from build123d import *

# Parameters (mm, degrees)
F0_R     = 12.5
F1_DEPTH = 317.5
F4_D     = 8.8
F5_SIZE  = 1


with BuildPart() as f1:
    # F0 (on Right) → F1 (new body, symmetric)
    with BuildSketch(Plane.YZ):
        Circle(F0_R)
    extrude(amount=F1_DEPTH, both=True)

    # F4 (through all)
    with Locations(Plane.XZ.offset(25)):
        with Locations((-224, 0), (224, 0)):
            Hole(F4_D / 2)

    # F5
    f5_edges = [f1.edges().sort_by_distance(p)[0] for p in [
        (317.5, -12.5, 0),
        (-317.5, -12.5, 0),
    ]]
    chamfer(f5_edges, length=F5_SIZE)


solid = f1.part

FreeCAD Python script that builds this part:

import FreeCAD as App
import Part
import Sketcher


def edges_at(feature, points):
    """Names of the edges that pass closest to the given points."""
    edges = feature.Shape.Edges
    near = lambda p: min(range(len(edges)), key=lambda i: edges[i].distToShape(Part.Vertex(*p))[0])
    return sorted({f"Edge{near(p) + 1}" for p in points})

doc = App.newDocument("Part")
body = doc.addObject("PartDesign::Body", "Body")

# Sketch on YZ plane
sketch1 = doc.addObject("Sketcher::SketchObject", "Sketch")
body.addObject(sketch1)
sketch1.AttachmentSupport = (doc.YZ_Plane, [""])
sketch1.MapMode = "FlatFace"
sketch1.addGeometry(Part.Circle(App.Vector(0, 0, 0), App.Vector(0, 0, 1), 12), False)
sketch1.addConstraint(Sketcher.Constraint("Coincident", 0, 3, -1, 1))
sketch1.addConstraint(Sketcher.Constraint("Diameter", 0, 25.0))
pad1 = doc.addObject("PartDesign::Pad", "Pad")
body.addObject(pad1)
pad1.Profile = sketch1
pad1.Length = 635
pad1.Midplane = True

# Sketch on XZ plane
sketch2 = doc.addObject("Sketcher::SketchObject", "Sketch001")
body.addObject(sketch2)
sketch2.AttachmentSupport = (doc.XZ_Plane, [""])
sketch2.MapMode = "FlatFace"
sketch2.AttachmentOffset = App.Placement(App.Vector(0, 0, 25), App.Rotation())
sketch2.addGeometry(Part.Circle(App.Vector(-224, 0, 0), App.Vector(0, 0, 1), 4.4), False)
sketch2.addGeometry(Part.Circle(App.Vector(224, 0, 0), App.Vector(0, 0, 1), 4.4), False)
sketch2.addConstraint(Sketcher.Constraint("Equal", 0, 1))
sketch2.addConstraint(Sketcher.Constraint("Symmetric", 0, 3, 1, 3, -1, 1))
sketch2.addConstraint(Sketcher.Constraint("PointOnObject", 0, 3, -1))
sketch2.addConstraint(Sketcher.Constraint("Diameter", 0, 8.8))
sketch2.addConstraint(Sketcher.Constraint("DistanceX", 0, 3, -1, 1, 224.0))
doc.recompute()
hole = doc.addObject("PartDesign::Hole", "Hole")
body.addObject(hole)
hole.Profile = sketch2
hole.ThreadType = "None"
hole.Diameter = 8.8
hole.DepthType = "ThroughAll"
doc.recompute()

chamfer = doc.addObject("PartDesign::Chamfer", "Chamfer")
body.addObject(chamfer)
chamfer.Base = (hole, edges_at(hole, [(317.5, -12.5, 0), (-317.5, -12.5, 0)]))
chamfer.Size = 1

doc.recompute()
